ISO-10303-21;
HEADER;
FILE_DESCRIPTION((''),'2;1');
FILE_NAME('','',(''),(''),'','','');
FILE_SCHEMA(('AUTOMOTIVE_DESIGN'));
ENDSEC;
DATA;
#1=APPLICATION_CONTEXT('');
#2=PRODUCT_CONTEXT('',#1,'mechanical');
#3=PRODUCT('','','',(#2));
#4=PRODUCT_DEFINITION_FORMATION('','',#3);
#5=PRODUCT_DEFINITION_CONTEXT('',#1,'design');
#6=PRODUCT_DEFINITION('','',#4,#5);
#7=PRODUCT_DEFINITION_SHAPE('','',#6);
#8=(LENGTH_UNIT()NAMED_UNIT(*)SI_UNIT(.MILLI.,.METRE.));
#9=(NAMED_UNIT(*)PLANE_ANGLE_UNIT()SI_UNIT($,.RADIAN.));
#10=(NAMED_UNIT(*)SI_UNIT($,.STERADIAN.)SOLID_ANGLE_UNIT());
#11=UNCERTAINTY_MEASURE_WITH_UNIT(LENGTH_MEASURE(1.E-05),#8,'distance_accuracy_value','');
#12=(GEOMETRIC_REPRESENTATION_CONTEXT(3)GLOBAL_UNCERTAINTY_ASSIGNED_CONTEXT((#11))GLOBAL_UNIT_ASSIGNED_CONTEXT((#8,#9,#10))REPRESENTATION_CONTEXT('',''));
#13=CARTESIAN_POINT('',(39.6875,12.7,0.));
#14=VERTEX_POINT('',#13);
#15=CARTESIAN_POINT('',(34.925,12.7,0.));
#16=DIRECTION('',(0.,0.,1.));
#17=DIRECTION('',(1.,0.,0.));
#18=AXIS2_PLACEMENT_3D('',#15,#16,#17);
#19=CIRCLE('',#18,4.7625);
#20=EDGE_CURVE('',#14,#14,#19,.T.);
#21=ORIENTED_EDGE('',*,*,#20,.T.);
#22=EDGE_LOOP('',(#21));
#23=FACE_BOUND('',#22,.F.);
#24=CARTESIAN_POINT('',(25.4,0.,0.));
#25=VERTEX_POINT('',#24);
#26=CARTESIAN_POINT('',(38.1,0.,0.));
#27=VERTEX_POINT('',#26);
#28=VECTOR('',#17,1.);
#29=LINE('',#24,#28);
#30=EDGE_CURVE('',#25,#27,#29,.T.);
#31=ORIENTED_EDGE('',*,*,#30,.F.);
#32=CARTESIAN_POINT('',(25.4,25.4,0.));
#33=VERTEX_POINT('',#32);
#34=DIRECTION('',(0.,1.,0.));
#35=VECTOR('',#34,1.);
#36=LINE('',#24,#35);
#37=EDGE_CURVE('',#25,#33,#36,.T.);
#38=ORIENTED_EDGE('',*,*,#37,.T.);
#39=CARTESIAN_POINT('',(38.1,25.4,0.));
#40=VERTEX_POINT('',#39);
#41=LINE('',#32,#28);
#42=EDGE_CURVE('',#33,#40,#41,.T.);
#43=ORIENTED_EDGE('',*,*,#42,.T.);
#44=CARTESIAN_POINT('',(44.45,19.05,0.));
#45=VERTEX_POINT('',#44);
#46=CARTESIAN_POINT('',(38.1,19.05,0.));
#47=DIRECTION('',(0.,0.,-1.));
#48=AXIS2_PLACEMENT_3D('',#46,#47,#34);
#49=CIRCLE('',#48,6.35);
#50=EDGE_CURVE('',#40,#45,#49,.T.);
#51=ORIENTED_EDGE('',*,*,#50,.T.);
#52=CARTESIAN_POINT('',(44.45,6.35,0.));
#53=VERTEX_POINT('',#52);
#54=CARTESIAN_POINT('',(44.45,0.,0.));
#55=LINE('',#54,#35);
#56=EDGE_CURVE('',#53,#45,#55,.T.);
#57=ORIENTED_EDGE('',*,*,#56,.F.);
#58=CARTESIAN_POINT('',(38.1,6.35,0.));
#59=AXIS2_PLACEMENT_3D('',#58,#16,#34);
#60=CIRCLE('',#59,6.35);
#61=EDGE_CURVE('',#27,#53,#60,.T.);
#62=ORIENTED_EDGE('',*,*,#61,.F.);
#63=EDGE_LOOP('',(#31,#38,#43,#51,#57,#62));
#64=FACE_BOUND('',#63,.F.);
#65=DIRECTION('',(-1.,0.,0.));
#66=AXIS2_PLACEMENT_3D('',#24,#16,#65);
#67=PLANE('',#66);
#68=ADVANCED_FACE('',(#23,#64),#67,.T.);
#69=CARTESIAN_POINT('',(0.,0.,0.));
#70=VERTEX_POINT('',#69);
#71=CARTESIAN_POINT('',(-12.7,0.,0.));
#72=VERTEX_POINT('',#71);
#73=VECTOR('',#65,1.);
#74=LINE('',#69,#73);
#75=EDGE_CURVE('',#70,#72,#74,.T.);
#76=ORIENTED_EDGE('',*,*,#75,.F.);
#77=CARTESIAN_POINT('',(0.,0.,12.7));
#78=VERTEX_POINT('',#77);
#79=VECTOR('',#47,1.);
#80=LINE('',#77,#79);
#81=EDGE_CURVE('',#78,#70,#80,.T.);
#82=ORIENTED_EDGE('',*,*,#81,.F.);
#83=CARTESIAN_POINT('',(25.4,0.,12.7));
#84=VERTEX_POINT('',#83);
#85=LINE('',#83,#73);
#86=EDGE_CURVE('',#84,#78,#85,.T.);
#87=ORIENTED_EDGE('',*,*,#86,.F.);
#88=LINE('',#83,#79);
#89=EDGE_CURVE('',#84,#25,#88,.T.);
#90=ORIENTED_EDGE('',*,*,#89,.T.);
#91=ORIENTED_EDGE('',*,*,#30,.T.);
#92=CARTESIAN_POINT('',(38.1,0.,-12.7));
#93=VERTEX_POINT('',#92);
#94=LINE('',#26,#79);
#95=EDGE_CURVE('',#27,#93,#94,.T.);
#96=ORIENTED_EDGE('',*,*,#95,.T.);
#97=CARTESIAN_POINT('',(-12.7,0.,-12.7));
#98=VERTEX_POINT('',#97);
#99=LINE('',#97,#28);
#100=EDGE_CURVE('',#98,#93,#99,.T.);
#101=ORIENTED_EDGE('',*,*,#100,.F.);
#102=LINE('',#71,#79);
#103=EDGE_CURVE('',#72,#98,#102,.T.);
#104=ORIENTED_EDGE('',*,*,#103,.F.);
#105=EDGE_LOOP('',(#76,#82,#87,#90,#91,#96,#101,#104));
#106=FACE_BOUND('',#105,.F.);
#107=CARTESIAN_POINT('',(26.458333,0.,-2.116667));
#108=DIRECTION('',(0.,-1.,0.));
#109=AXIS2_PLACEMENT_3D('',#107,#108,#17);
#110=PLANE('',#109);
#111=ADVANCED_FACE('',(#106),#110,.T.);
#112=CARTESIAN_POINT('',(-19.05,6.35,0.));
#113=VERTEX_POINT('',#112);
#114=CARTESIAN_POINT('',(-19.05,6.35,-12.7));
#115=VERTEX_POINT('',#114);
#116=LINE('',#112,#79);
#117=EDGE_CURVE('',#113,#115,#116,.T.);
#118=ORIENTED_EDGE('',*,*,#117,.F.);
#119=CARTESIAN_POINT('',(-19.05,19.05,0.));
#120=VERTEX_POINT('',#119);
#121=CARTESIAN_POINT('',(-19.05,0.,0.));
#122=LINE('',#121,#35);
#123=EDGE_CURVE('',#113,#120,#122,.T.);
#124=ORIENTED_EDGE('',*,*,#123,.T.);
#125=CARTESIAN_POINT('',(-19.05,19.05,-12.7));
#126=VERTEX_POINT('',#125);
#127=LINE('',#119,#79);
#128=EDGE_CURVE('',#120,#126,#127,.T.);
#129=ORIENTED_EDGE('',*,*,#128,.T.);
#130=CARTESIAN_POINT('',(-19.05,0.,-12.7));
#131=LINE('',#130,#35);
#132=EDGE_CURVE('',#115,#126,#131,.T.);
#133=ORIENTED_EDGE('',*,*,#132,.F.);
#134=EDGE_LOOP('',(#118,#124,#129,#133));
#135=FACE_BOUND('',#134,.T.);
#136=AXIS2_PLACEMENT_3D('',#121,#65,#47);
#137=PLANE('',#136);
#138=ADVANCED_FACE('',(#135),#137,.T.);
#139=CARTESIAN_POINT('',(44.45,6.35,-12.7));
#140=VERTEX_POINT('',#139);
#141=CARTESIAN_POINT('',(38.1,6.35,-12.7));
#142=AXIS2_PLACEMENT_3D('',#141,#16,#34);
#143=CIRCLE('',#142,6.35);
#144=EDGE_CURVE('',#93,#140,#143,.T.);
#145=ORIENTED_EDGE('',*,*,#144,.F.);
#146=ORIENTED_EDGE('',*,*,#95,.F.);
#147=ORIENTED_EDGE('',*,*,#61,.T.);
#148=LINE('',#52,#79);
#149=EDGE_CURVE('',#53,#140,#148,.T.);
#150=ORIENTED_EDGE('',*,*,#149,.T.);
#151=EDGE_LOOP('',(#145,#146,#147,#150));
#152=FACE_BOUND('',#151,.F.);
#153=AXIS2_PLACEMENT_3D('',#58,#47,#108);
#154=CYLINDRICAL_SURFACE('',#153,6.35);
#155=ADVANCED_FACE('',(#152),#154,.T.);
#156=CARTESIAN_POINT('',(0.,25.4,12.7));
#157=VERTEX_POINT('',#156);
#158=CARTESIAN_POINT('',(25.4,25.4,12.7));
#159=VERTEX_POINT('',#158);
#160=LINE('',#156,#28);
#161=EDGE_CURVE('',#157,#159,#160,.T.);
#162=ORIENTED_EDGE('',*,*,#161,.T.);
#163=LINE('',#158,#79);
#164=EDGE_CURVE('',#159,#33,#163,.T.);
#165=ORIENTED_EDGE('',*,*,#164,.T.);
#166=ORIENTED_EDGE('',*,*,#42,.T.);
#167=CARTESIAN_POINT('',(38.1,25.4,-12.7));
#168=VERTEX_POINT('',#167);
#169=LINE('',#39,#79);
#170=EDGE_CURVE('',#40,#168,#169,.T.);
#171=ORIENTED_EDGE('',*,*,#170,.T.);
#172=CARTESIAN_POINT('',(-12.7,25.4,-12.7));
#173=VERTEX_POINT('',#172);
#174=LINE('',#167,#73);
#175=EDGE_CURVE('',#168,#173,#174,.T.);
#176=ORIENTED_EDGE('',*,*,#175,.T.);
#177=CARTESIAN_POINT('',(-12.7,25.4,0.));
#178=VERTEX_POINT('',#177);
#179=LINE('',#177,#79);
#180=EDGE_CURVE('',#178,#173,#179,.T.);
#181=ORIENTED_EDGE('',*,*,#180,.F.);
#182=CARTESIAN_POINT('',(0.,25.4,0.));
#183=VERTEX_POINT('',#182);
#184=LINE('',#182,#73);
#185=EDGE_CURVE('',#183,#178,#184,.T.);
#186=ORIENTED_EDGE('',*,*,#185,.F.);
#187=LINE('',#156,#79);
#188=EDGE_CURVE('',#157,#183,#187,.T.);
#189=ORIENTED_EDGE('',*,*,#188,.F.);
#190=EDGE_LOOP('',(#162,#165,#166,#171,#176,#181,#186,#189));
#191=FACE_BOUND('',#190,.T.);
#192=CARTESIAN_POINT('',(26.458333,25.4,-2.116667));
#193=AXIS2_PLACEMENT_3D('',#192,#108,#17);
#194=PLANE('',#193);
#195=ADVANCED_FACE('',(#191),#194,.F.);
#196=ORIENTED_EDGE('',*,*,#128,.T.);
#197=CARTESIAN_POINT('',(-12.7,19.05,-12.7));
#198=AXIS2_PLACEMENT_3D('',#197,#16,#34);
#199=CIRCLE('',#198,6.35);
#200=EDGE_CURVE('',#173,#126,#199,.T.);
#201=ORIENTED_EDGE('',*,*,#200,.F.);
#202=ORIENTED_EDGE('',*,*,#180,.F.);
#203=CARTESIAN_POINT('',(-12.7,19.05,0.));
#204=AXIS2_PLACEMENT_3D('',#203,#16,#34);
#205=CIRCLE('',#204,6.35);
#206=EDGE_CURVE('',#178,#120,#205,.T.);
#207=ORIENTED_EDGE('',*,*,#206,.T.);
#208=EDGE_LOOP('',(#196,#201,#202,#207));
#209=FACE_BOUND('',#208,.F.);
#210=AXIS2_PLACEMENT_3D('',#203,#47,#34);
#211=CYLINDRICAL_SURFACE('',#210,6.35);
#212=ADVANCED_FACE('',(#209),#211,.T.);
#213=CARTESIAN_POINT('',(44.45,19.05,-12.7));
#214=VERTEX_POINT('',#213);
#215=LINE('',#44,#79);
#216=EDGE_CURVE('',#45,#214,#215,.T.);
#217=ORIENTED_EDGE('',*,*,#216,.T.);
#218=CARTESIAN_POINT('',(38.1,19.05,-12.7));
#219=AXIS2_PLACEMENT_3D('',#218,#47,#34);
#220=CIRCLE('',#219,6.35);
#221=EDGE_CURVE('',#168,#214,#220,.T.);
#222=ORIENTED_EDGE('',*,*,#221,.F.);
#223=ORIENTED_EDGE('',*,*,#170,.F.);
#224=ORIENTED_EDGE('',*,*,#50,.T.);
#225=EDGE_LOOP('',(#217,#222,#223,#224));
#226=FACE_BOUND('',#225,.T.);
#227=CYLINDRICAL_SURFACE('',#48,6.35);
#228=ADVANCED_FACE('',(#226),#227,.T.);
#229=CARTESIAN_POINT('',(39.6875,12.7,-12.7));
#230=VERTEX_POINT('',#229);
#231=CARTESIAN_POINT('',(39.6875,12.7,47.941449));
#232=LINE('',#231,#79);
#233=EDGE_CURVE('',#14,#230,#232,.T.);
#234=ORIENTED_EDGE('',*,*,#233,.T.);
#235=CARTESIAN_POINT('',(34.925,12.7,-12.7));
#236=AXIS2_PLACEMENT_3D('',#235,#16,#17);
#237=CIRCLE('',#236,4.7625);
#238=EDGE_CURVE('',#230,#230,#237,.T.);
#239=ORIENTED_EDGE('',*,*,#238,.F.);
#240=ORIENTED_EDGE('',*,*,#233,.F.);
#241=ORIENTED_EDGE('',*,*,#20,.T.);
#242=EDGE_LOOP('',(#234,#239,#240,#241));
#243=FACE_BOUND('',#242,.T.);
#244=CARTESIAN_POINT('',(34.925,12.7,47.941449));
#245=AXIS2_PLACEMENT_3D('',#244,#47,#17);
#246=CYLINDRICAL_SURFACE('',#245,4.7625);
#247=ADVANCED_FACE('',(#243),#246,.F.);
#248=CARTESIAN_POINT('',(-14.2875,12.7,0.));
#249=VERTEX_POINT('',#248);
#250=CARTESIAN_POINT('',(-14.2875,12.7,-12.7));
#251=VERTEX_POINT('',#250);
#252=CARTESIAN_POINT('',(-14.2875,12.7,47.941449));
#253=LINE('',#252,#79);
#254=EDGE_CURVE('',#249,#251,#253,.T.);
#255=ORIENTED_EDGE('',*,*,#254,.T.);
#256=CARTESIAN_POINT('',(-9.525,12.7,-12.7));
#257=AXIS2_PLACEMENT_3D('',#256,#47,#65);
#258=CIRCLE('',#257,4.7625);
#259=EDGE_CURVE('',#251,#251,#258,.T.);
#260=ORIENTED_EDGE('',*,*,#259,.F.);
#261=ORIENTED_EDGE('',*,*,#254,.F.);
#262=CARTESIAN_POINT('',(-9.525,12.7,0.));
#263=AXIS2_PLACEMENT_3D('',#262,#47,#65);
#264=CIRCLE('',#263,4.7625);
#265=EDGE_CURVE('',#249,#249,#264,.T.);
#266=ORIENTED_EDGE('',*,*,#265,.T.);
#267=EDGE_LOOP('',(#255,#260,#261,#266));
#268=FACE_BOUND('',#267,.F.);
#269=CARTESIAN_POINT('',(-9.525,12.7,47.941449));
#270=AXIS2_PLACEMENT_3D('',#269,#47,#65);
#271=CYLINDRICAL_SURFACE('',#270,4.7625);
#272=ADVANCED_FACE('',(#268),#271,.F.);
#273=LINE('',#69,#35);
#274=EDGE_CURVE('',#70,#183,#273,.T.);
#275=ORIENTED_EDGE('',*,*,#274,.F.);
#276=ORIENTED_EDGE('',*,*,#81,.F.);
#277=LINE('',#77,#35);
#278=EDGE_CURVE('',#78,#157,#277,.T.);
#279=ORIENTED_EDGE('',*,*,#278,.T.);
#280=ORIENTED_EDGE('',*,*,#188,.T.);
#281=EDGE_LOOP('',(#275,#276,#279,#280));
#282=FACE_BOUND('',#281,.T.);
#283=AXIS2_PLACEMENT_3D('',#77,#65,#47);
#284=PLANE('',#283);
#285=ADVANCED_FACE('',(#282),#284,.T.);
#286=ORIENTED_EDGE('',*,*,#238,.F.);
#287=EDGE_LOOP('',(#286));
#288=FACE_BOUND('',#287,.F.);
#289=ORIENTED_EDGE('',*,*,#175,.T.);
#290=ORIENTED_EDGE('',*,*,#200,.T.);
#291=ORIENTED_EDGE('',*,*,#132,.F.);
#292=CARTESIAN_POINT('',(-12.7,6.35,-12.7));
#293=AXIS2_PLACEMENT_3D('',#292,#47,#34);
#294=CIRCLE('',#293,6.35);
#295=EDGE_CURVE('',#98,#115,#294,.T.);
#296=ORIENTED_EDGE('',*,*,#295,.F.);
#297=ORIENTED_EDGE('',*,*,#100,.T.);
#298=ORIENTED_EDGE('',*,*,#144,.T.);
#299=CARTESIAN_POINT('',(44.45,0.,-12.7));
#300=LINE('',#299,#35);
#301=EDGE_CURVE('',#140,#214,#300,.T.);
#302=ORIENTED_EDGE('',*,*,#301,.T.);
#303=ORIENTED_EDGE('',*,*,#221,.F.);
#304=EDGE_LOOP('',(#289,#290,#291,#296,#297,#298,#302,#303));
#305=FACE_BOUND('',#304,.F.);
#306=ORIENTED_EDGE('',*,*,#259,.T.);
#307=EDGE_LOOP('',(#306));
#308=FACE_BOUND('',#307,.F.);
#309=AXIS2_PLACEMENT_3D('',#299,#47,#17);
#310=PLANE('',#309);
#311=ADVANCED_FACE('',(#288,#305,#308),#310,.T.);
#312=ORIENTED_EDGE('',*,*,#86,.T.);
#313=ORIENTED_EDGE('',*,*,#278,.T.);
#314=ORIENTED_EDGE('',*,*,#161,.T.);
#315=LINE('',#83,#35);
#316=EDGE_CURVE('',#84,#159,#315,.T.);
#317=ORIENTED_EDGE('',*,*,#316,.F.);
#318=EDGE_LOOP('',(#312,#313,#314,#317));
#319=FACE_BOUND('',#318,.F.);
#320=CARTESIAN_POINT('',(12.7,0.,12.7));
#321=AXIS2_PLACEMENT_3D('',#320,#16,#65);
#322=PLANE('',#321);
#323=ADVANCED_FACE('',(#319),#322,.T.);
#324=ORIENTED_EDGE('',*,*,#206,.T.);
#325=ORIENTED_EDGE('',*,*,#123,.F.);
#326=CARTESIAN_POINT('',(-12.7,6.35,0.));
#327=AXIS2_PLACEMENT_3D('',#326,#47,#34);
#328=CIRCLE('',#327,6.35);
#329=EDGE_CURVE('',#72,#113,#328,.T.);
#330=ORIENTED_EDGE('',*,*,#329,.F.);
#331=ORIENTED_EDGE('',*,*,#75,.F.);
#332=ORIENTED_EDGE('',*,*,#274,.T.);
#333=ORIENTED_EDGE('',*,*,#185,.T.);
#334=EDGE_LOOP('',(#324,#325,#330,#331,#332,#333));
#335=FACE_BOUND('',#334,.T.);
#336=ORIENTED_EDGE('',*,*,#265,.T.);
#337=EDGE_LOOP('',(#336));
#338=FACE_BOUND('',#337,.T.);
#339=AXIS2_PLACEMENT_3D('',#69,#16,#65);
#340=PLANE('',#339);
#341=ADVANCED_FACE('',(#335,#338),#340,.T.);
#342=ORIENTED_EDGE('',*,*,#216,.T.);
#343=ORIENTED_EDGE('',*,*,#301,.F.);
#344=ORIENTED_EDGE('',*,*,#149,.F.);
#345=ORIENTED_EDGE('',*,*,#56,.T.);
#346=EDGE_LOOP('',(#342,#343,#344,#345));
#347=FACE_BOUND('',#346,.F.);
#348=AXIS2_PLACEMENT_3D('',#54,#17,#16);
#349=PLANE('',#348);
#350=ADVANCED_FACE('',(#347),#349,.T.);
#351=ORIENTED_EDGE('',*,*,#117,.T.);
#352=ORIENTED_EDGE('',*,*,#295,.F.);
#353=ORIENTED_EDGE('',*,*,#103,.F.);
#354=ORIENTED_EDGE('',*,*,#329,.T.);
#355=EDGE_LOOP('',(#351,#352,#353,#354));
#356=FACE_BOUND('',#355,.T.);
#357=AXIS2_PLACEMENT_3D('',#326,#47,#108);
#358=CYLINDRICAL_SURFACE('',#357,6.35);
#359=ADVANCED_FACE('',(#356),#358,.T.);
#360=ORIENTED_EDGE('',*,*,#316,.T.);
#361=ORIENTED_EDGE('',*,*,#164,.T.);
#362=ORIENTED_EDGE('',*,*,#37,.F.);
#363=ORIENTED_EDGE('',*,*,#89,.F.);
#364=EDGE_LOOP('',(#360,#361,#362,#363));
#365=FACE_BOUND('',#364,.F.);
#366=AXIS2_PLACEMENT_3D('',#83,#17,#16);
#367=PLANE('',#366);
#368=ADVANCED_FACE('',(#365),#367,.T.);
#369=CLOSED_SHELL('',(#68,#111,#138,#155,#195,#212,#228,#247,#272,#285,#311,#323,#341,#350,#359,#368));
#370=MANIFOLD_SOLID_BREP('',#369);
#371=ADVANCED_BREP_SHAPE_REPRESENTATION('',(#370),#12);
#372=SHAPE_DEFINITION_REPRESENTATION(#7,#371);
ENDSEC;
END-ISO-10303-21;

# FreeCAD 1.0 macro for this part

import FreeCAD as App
import Part
import Sketcher
from FreeCAD import Vector
Q = App.Units.Quantity


def edges_at(feature, points):
    """Names of the edges that pass closest to the given points."""
    edges = feature.Shape.Edges
    near = lambda p: min(range(len(edges)), key=lambda i: edges[i].distToShape(Part.Vertex(*p))[0])
    return sorted({f"Edge{near(p) + 1}" for p in points})

doc = App.newDocument("Part")
body = doc.addObject("PartDesign::Body", "Body")

sketch1 = doc.addObject("Sketcher::SketchObject", "Sketch")
body.addObject(sketch1)
sketch1.AttachmentSupport = (doc.XZ_Plane, [""])
sketch1.MapMode = "FlatFace"
sketch1.addGeometry([
    Part.LineSegment(Vector(0, 0, 0), Vector(-19, 0, 0)),
    Part.LineSegment(Vector(-19, 0, 0), Vector(-19, -13, 0)),
    Part.LineSegment(Vector(-19, -13, 0), Vector(13, -13, 0)),
    Part.LineSegment(Vector(13, -13, 0), Vector(13, 13, 0)),
    Part.LineSegment(Vector(13, 13, 0), Vector(0, 13, 0)),
    Part.LineSegment(Vector(0, 13, 0), Vector(0, 0, 0)),
], False)
sketch1.addConstraint([
    Sketcher.Constraint("Coincident", 0, 2, 1, 1),
    Sketcher.Constraint("Coincident", 1, 2, 2, 1),
    Sketcher.Constraint("Coincident", 2, 2, 3, 1),
    Sketcher.Constraint("Coincident", 3, 2, 4, 1),
    Sketcher.Constraint("Coincident", 4, 2, 5, 1),
    Sketcher.Constraint("Coincident", 5, 2, 0, 1),
    Sketcher.Constraint("Horizontal", 0),
    Sketcher.Constraint("Vertical", 1),
    Sketcher.Constraint("Horizontal", 2),
    Sketcher.Constraint("Vertical", 3),
    Sketcher.Constraint("Horizontal", 4),
    Sketcher.Constraint("Vertical", 5),
    Sketcher.Constraint("Coincident", 5, 2, -1, 1),
    Sketcher.Constraint("Equal", 4, 1),
    Sketcher.Constraint("Equal", 1, 5),
    Sketcher.Constraint("DistanceY", 3, 1, 3, 2, Q("1 in")),
    Sketcher.Constraint("DistanceX", 0, 2, 0, 1, Q("0.75 in")),
])
pad1 = doc.addObject("PartDesign::Pad", "Pad")
body.addObject(pad1)
pad1.Profile = sketch1
pad1.Length = Q("1 in")
pad1.Reversed = True

sketch2 = doc.addObject("Sketcher::SketchObject", "Sketch001")
body.addObject(sketch2)
sketch2.AttachmentSupport = (doc.XY_Plane, [""])
sketch2.MapMode = "FlatFace"
sketch2.addGeometry(Part.Circle(Vector(-9.5, 12.7, 0), Vector(0, 0, 1), 4.8), False)
sketch2.addConstraint([
    Sketcher.Constraint("Diameter", 0, Q("0.375 in")),
    Sketcher.Constraint("DistanceY", -1, 1, 0, 3, Q("0.5 in")),
    Sketcher.Constraint("DistanceX", 0, 3, -1, 1, Q("0.375 in")),
])
doc.recompute()
hole = doc.addObject("PartDesign::Hole", "Hole")
body.addObject(hole)
hole.Profile = sketch2
hole.ThreadType = "None"
hole.Diameter = Q("0.375 in")
hole.DepthType = "ThroughAll"
doc.recompute()

fillet = doc.addObject("PartDesign::Fillet", "Fillet")
body.addObject(fillet)
fillet.Base = (hole, edges_at(hole, [(-19.05, 25.4, -6.35), (-19.05, 0, -6.35)]))
fillet.Radius = Q("0.25 in")
body2 = doc.addObject("PartDesign::Body", "Body001")
doc.recompute()

body2.BaseFeature = body
doc.recompute()

mirroring = doc.addObject("Part::Mirroring", "Mirroring")
mirroring.Source = body
mirroring.Base = Vector(12.7, 12.7, 0)
mirroring.Normal = Vector(1, 0, 0)
body3 = doc.addObject("PartDesign::Body", "Body002")
body3.BaseFeature = mirroring
boolean = doc.addObject("PartDesign::Boolean", "Boolean")
body2.addObject(boolean)
boolean.Type = "Fuse"
boolean.addObjects([body3])
doc.recompute()
mirroring.Visibility = False

doc.recompute()
